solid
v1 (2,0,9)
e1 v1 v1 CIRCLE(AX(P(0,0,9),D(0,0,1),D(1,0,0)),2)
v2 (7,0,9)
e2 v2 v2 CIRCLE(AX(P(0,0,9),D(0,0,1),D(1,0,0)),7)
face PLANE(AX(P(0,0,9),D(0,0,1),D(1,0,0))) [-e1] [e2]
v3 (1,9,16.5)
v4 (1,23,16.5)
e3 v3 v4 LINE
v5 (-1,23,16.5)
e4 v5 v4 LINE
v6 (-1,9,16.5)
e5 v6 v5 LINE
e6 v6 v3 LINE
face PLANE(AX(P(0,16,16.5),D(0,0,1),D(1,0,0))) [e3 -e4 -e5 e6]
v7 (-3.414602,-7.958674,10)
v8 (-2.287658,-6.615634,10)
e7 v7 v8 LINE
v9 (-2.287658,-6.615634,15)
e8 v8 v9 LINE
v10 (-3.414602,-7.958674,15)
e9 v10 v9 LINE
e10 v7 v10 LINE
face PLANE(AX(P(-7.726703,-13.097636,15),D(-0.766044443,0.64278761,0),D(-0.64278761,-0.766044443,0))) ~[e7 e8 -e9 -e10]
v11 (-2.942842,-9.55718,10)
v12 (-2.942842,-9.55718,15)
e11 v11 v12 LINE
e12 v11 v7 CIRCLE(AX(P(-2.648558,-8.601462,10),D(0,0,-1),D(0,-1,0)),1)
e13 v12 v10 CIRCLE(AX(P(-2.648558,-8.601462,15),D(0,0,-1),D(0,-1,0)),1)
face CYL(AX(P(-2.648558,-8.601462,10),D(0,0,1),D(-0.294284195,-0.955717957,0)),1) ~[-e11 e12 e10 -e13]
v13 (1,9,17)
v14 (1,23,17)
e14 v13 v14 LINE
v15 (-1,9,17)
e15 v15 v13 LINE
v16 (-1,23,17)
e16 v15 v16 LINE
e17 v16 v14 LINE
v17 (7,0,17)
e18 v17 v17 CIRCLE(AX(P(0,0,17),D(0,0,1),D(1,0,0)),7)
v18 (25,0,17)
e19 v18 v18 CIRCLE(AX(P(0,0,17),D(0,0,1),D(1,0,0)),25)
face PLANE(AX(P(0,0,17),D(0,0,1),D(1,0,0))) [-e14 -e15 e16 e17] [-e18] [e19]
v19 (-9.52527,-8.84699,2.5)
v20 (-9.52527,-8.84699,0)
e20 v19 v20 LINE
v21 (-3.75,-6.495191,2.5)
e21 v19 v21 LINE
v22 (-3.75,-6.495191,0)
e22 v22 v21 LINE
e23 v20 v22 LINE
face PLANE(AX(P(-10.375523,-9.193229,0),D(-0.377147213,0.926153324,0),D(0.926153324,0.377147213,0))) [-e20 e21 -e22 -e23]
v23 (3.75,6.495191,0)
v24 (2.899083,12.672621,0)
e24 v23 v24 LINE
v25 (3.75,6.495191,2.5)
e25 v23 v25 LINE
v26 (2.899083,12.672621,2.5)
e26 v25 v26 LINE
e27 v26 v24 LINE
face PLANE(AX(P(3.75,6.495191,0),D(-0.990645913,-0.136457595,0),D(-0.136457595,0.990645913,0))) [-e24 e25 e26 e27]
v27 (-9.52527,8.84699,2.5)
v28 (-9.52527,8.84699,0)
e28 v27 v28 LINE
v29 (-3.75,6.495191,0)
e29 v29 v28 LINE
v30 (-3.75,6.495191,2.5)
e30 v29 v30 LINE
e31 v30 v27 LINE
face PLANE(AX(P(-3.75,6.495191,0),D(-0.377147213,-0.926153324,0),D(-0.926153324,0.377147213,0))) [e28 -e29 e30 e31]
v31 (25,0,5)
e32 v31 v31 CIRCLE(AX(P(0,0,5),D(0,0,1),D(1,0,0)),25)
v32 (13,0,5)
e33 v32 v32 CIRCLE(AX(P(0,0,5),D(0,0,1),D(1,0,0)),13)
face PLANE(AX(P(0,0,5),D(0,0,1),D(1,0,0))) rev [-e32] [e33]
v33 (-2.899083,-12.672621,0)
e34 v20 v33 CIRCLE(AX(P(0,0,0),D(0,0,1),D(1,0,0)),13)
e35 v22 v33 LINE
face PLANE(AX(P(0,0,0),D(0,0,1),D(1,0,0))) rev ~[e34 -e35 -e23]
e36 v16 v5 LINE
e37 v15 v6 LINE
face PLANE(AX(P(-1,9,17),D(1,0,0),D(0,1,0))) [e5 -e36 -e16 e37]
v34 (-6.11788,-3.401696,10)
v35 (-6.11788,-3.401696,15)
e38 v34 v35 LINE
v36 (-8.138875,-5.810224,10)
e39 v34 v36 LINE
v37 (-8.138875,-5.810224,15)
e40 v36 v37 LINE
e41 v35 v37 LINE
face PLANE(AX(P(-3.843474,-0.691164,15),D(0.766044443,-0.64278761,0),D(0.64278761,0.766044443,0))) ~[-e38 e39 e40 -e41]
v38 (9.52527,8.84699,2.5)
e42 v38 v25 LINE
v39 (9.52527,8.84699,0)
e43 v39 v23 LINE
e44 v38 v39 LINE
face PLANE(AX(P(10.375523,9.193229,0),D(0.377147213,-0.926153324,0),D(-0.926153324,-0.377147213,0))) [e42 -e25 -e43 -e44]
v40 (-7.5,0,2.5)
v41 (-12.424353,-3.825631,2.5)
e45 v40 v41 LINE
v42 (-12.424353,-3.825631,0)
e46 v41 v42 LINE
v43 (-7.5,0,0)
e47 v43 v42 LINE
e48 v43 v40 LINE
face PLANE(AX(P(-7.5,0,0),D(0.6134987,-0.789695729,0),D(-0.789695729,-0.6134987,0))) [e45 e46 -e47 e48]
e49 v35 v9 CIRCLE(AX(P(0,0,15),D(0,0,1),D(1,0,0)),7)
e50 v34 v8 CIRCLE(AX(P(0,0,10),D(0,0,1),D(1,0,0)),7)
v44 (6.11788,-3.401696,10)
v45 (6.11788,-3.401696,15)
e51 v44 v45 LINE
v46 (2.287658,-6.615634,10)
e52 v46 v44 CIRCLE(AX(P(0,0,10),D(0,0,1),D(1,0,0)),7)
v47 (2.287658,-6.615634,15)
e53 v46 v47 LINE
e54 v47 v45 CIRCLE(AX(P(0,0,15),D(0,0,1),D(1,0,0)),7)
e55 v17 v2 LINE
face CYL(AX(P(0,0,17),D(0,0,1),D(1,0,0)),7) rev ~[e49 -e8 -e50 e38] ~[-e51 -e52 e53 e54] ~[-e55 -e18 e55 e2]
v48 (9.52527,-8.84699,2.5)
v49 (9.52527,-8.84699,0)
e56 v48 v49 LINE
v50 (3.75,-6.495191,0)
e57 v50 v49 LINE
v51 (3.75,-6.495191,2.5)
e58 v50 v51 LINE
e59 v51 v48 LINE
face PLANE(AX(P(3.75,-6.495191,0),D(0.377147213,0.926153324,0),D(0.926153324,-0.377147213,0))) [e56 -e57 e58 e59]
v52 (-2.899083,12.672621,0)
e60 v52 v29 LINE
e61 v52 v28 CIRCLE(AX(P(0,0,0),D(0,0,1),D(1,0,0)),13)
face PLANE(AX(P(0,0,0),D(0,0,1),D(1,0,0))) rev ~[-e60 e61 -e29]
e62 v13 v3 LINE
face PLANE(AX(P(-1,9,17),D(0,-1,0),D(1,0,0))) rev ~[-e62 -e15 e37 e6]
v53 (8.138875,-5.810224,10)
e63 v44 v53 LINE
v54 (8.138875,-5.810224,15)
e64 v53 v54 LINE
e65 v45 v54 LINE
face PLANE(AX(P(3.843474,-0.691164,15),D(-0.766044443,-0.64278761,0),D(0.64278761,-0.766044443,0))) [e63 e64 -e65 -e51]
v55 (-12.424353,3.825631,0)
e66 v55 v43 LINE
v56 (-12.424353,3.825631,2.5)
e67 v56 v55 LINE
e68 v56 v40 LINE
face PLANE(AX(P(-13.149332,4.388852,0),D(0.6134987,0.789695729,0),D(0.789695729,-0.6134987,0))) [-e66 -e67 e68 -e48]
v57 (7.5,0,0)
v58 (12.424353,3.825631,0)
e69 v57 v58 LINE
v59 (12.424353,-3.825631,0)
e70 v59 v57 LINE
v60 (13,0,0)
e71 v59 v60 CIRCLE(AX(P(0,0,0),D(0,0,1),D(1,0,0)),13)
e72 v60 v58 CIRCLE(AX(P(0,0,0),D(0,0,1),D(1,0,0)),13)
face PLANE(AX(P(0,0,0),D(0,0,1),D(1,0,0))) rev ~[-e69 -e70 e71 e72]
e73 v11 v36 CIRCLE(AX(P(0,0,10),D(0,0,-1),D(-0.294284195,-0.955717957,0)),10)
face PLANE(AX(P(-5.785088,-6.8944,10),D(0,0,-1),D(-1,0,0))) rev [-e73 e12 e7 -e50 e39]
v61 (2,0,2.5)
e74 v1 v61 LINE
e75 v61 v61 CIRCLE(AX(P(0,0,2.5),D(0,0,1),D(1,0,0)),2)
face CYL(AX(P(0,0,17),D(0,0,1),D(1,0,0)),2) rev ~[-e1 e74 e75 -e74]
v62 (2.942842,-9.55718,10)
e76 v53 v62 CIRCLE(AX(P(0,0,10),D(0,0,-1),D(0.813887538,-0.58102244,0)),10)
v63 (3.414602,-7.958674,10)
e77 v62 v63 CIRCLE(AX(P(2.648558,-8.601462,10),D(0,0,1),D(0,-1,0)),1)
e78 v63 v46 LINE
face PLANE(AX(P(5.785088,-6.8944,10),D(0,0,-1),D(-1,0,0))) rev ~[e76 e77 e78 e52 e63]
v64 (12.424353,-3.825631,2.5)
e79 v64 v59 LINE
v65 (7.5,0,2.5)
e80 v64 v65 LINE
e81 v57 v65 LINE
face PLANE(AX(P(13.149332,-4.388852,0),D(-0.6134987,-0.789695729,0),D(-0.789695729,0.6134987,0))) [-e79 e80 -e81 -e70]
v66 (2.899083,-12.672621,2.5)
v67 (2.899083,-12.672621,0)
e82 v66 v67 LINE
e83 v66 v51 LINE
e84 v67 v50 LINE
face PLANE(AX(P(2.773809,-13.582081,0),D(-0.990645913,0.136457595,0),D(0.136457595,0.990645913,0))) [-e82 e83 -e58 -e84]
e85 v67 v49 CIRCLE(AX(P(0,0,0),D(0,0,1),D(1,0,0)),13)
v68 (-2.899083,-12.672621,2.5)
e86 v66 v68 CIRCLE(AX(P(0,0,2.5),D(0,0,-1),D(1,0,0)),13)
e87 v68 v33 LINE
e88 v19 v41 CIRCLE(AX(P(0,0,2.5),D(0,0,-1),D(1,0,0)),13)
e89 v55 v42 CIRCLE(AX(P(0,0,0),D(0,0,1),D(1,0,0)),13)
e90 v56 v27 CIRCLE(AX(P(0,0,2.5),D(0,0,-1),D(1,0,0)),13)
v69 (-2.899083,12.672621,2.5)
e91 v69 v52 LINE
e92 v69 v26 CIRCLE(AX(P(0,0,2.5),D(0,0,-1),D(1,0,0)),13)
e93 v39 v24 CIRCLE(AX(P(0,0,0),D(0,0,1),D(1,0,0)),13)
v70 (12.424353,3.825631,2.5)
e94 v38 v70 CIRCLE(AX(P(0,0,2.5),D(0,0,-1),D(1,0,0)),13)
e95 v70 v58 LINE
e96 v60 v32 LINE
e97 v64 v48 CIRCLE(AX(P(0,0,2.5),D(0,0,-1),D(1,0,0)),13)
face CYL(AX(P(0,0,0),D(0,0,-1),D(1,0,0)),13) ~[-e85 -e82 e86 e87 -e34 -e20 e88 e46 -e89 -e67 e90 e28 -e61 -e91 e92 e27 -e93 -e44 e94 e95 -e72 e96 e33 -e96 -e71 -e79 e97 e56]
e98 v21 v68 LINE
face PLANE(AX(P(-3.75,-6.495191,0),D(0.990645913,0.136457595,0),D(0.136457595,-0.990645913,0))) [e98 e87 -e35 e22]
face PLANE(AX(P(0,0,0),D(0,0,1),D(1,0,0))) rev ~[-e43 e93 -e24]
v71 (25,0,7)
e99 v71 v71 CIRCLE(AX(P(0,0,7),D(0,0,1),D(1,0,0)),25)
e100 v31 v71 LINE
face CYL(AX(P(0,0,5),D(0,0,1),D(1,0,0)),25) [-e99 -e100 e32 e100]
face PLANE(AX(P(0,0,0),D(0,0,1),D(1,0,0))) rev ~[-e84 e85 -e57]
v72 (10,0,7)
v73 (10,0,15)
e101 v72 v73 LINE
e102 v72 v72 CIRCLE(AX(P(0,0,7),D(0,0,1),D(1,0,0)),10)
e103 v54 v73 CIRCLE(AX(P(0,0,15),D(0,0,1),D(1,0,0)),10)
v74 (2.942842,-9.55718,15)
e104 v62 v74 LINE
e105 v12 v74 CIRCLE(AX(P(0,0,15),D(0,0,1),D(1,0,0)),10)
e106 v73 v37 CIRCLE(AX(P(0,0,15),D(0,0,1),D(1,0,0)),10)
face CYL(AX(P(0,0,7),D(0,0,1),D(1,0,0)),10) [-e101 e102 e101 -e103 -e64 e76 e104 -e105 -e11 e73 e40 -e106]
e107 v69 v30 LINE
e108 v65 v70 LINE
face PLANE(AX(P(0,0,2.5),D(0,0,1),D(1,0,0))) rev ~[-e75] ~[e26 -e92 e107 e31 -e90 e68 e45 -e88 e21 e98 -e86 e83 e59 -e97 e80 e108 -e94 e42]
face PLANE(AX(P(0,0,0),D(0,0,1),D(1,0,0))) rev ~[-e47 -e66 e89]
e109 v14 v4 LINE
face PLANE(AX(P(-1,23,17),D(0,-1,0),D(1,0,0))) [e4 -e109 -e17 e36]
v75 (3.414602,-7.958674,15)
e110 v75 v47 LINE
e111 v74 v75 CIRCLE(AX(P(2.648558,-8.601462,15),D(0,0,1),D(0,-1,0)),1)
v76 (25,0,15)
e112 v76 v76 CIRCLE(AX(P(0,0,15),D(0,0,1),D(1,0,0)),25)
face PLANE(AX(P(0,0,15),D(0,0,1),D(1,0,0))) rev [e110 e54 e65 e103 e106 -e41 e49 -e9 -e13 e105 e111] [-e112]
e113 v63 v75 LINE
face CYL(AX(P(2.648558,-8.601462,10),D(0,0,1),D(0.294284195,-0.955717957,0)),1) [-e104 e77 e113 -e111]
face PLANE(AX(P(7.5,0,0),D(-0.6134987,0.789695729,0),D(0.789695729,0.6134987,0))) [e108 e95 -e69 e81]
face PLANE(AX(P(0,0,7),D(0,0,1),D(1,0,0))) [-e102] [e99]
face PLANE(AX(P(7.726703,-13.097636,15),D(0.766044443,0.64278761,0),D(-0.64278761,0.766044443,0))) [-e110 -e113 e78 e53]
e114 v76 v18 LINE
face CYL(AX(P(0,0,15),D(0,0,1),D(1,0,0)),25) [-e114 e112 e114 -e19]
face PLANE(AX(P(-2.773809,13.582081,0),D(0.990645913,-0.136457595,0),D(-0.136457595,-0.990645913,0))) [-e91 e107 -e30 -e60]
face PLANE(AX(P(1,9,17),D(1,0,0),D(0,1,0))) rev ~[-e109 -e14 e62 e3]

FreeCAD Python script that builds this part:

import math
import FreeCAD as App
import Part
import Sketcher
from FreeCAD import Vector
Q = App.Units.Quantity


def edges_at(feature, points):
    """Names of the edges that pass closest to the given points."""
    edges = feature.Shape.Edges
    near = lambda p: min(range(len(edges)), key=lambda i: edges[i].distToShape(Part.Vertex(*p))[0])
    return sorted({f"Edge{near(p) + 1}" for p in points})


def add_polygon(sketch, points):
    """Adds a closed chain of lines whose ends are joined by coincident constraints."""
    first, n = sketch.GeometryCount, len(points)
    for a, b in zip(points, points[1:] + points[:1]):
        sketch.addGeometry(Part.LineSegment(App.Vector(*a, 0), App.Vector(*b, 0)), False)
    for i in range(n):
        sketch.addConstraint(Sketcher.Constraint("Coincident", first + i, 2, first + (i + 1) % n, 1))

doc = App.newDocument("Part")
body = doc.addObject("PartDesign::Body", "Body")

# Sketch on XY plane
sketch1 = body.newObject("Sketcher::SketchObject", "Sketch")
sketch1.AttachmentSupport = (doc.getObject("XY_Plane"), [""])
sketch1.MapMode = "FlatFace"
sketch1.addGeometry(Part.Circle(Vector(0, 0, 0), Vector(0, 0, 1), 13), False)
sketch1.addConstraint(Sketcher.Constraint("Coincident", 0, 3, -1, 1))
sketch1.addConstraint(Sketcher.Constraint("Diameter", 0, Q("26 mm")))
pad1 = body.newObject("PartDesign::Pad", "Pad")
pad1.Profile = sketch1
pad1.Length = 5

# Sketch on XY plane
sketch2 = body.newObject("Sketcher::SketchObject", "Sketch001")
sketch2.AttachmentSupport = (doc.getObject("XY_Plane"), [""])
sketch2.MapMode = "FlatFace"
sketch2.addGeometry(Part.LineSegment(Vector(3.8, 6.5, 0), Vector(2.8, 13.6, 0)), False)
sketch2.addGeometry(Part.ArcOfCircle(Part.Circle(Vector(0, 13.2, 0), Vector(0, 0, 1), 2.8), math.radians(8), math.radians(172)), False)
sketch2.addGeometry(Part.LineSegment(Vector(-2.8, 13.6, 0), Vector(-3.8, 6.5, 0)), False)
sketch2.addGeometry(Part.LineSegment(Vector(-3.8, 6.5, 0), Vector(-10.4, 9.2, 0)), False)
sketch2.addGeometry(Part.ArcOfCircle(Part.Circle(Vector(-11.4, 6.6, 0), Vector(0, 0, 1), 2.8), math.radians(68), math.radians(232)), False)
sketch2.addGeometry(Part.LineSegment(Vector(-13.1, 4.4, 0), Vector(-7.5, 0, 0)), False)
sketch2.addGeometry(Part.LineSegment(Vector(-7.5, 0, 0), Vector(-13.1, -4.4, 0)), False)
sketch2.addGeometry(Part.ArcOfCircle(Part.Circle(Vector(-11.4, -6.6, 0), Vector(0, 0, 1), 2.8), math.radians(128), math.radians(292)), False)
sketch2.addGeometry(Part.LineSegment(Vector(-10.4, -9.2, 0), Vector(-3.8, -6.5, 0)), False)
sketch2.addGeometry(Part.LineSegment(Vector(-3.8, -6.5, 0), Vector(-2.8, -13.6, 0)), False)
sketch2.addGeometry(Part.ArcOfCircle(Part.Circle(Vector(0, -13.2, 0), Vector(0, 0, 1), 2.8), math.radians(-172), math.radians(-8)), False)
sketch2.addGeometry(Part.LineSegment(Vector(2.8, -13.6, 0), Vector(3.8, -6.5, 0)), False)
sketch2.addGeometry(Part.LineSegment(Vector(3.8, -6.5, 0), Vector(10.4, -9.2, 0)), False)
sketch2.addGeometry(Part.ArcOfCircle(Part.Circle(Vector(11.4, -6.6, 0), Vector(0, 0, 1), 2.8), math.radians(-112), math.radians(52)), False)
sketch2.addGeometry(Part.LineSegment(Vector(13.1, -4.4, 0), Vector(7.5, 0, 0)), False)
sketch2.addGeometry(Part.LineSegment(Vector(7.5, 0, 0), Vector(13.1, 4.4, 0)), False)
sketch2.addGeometry(Part.ArcOfCircle(Part.Circle(Vector(11.4, 6.6, 0), Vector(0, 0, 1), 2.8), math.radians(-52), math.radians(112)), False)
sketch2.addGeometry(Part.LineSegment(Vector(10.4, 9.2, 0), Vector(3.8, 6.5, 0)), False)
sketch2.addConstraint(Sketcher.Constraint("Tangent", 0, 2, 1, 1))
sketch2.addConstraint(Sketcher.Constraint("Tangent", 1, 2, 2, 1))
sketch2.addConstraint(Sketcher.Constraint("Coincident", 2, 2, 3, 1))
sketch2.addConstraint(Sketcher.Constraint("Tangent", 3, 2, 4, 1))
sketch2.addConstraint(Sketcher.Constraint("Tangent", 4, 2, 5, 1))
sketch2.addConstraint(Sketcher.Constraint("Coincident", 5, 2, 6, 1))
sketch2.addConstraint(Sketcher.Constraint("Tangent", 6, 2, 7, 1))
sketch2.addConstraint(Sketcher.Constraint("Tangent", 7, 2, 8, 1))
sketch2.addConstraint(Sketcher.Constraint("Coincident", 8, 2, 9, 1))
sketch2.addConstraint(Sketcher.Constraint("Tangent", 9, 2, 10, 1))
sketch2.addConstraint(Sketcher.Constraint("Tangent", 10, 2, 11, 1))
sketch2.addConstraint(Sketcher.Constraint("Coincident", 11, 2, 12, 1))
sketch2.addConstraint(Sketcher.Constraint("Tangent", 12, 2, 13, 1))
sketch2.addConstraint(Sketcher.Constraint("Tangent", 13, 2, 14, 1))
sketch2.addConstraint(Sketcher.Constraint("Coincident", 14, 2, 15, 1))
sketch2.addConstraint(Sketcher.Constraint("Tangent", 15, 2, 16, 1))
sketch2.addConstraint(Sketcher.Constraint("Tangent", 16, 2, 17, 1))
sketch2.addConstraint(Sketcher.Constraint("Coincident", 17, 2, 0, 1))
sketch2.addConstraint(Sketcher.Constraint("Equal", 1, 4))
sketch2.addConstraint(Sketcher.Constraint("Equal", 4, 7))
sketch2.addConstraint(Sketcher.Constraint("Equal", 7, 10))
sketch2.addConstraint(Sketcher.Constraint("Equal", 10, 13))
sketch2.addConstraint(Sketcher.Constraint("Equal", 13, 16))
sketch2.addConstraint(Sketcher.Constraint("Symmetric", 1, 3, 10, 3, -1, 1))
sketch2.addConstraint(Sketcher.Constraint("Symmetric", 4, 3, 13, 3, -1, 1))
sketch2.addConstraint(Sketcher.Constraint("Symmetric", 7, 3, 16, 3, -1, 1))
sketch2.addConstraint(Sketcher.Constraint("Symmetric", 2, 2, 11, 2, -1, 1))
sketch2.addConstraint(Sketcher.Constraint("Symmetric", 5, 2, 14, 2, -1, 1))
sketch2.addConstraint(Sketcher.Constraint("Symmetric", 8, 2, 17, 2, -1, 1))
sketch2.addConstraint(Sketcher.Constraint("Symmetric", 7, 3, 13, 3, -2))
sketch2.addConstraint(Sketcher.Constraint("Symmetric", 0, 2, 1, 2, -2))
sketch2.addConstraint(Sketcher.Constraint("PointOnObject", 5, 2, -1))
sketch2.addConstraint(Sketcher.Constraint("Horizontal", 8, 2, 11, 2))
sketch2.addConstraint(Sketcher.Constraint("Equal", 2, 3))
sketch2.addConstraint(Sketcher.Constraint("Equal", 3, 5))
sketch2.addConstraint(Sketcher.Constraint("Radius", 1, Q("2.8 mm")))
sketch2.addConstraint(Sketcher.Constraint("DistanceY", -1, 1, 1, 3, Q("13.2 mm")))
sketch2.addConstraint(Sketcher.Constraint("DistanceY", -1, 1, 4, 3, Q("6.6 mm")))
sketch2.addConstraint(Sketcher.Constraint("DistanceX", 5, 2, -1, 1, Q("7.5 mm")))
sketch2.addConstraint(Sketcher.Constraint("DistanceX", 8, 2, 11, 2, Q("7.5 mm")))
pocket1 = body.newObject("PartDesign::Pocket", "Pocket")
pocket1.Profile = sketch2
pocket1.Length = 2.5
pocket1.Reversed = True

# Sketch on XZ plane
sketch3 = body.newObject("Sketcher::SketchObject", "Sketch002")
sketch3.AttachmentSupport = (doc.getObject("XZ_Plane"), [""])
sketch3.MapMode = "FlatFace"
add_polygon(sketch3, [(25, 5), (0, 5), (0, 17), (25, 17), (25, 15), (10, 15), (10, 7), (25, 7)])  # lines 0-7
sketch3.addConstraint(Sketcher.Constraint("Horizontal", 0))
sketch3.addConstraint(Sketcher.Constraint("Vertical", 1))
sketch3.addConstraint(Sketcher.Constraint("Horizontal", 2))
sketch3.addConstraint(Sketcher.Constraint("Vertical", 3))
sketch3.addConstraint(Sketcher.Constraint("Horizontal", 4))
sketch3.addConstraint(Sketcher.Constraint("Vertical", 5))
sketch3.addConstraint(Sketcher.Constraint("Horizontal", 6))
sketch3.addConstraint(Sketcher.Constraint("Vertical", 7))
sketch3.addConstraint(Sketcher.Constraint("PointOnObject", 0, 2, -2))
sketch3.addConstraint(Sketcher.Constraint("Vertical", 3, 2, 6, 2))
sketch3.addConstraint(Sketcher.Constraint("Equal", 3, 7))
sketch3.addConstraint(Sketcher.Constraint("DistanceX", 0, 2, 0, 1, Q("25 mm")))
sketch3.addConstraint(Sketcher.Constraint("DistanceX", 4, 2, 4, 1, Q("15 mm")))
sketch3.addConstraint(Sketcher.Constraint("DistanceY", 1, 1, 1, 2, Q("12 mm")))
sketch3.addConstraint(Sketcher.Constraint("DistanceY", 3, 2, 3, 1, Q("2 mm")))
sketch3.addConstraint(Sketcher.Constraint("DistanceY", -1, 1, 0, 2, Q("5 mm")))
revolution = body.newObject("PartDesign::Revolution", "Revolution")
revolution.Profile = sketch3
revolution.ReferenceAxis = (sketch3, ["V_Axis"])
revolution.Angle = 360

# Sketch on XY plane
sketch4 = body.newObject("Sketcher::SketchObject", "Sketch003")
sketch4.AttachmentSupport = (doc.getObject("XY_Plane"), [""])
sketch4.MapMode = "FlatFace"
sketch4.AttachmentOffset = App.Placement(Vector(0, 0, 17), App.Rotation())
sketch4.addGeometry(Part.Circle(Vector(0, 0, 0), Vector(0, 0, 1), 2), False)
sketch4.addConstraint(Sketcher.Constraint("Coincident", 0, 3, -1, 1))
sketch4.addConstraint(Sketcher.Constraint("Diameter", 0, Q("4 mm")))
pocket2 = body.newObject("PartDesign::Pocket", "Pocket001")
pocket2.Profile = sketch4
pocket2.Type = "ThroughAll"

# Sketch on XY plane
sketch5 = body.newObject("Sketcher::SketchObject", "Sketch004")
sketch5.AttachmentSupport = (doc.getObject("XY_Plane"), [""])
sketch5.MapMode = "FlatFace"
sketch5.AttachmentOffset = App.Placement(Vector(0, 0, 17), App.Rotation())
sketch5.addGeometry(Part.Circle(Vector(0, 0, 0), Vector(0, 0, 1), 7), False)
sketch5.addConstraint(Sketcher.Constraint("Coincident", 0, 3, -1, 1))
sketch5.addConstraint(Sketcher.Constraint("Diameter", 0, Q("14 mm")))
pocket3 = body.newObject("PartDesign::Pocket", "Pocket002")
pocket3.Profile = sketch5
pocket3.Length = 8

# Sketch on XY plane
sketch6 = body.newObject("Sketcher::SketchObject", "Sketch005")
sketch6.AttachmentSupport = (doc.getObject("XY_Plane"), [""])
sketch6.MapMode = "FlatFace"
sketch6.AttachmentOffset = App.Placement(Vector(0, 0, 15), App.Rotation())
add_polygon(sketch6, [(3.8, -0.7), (11.6, -9.9), (7.7, -13.1), (0, -3.9)])  # lines 0-3
sketch6.addConstraint(Sketcher.Constraint("Perpendicular", 0, 1))
sketch6.addConstraint(Sketcher.Constraint("Perpendicular", 1, 2))
sketch6.addConstraint(Sketcher.Constraint("Perpendicular", 2, 3))
sketch6.addConstraint(Sketcher.Constraint("Angle", 0, Q("-50 deg")))
sketch6.addConstraint(Sketcher.Constraint("Distance", 0, Q("12 mm")))
sketch6.addConstraint(Sketcher.Constraint("Distance", 1, Q("5 mm")))
sketch6.addConstraint(Sketcher.Constraint("DistanceX", -1, 1, 2, 2, Q("0.013252 mm")))
sketch6.addConstraint(Sketcher.Constraint("DistanceY", 0, 2, -1, 1, Q("9.883698 mm")))
pocket4 = body.newObject("PartDesign::Pocket", "Pocket003")
pocket4.Profile = sketch6
pocket4.Length = 5
doc.recompute()

mirrored = body.newObject("PartDesign::Mirrored", "Mirrored")
mirrored.Originals = [pocket4]
mirrored.MirrorPlane = (doc.getObject("YZ_Plane"), [""])
body.Tip = mirrored
doc.recompute()

fillet = body.newObject("PartDesign::Fillet", "Fillet")
fillet.Base = (mirrored, edges_at(mirrored, [(4.309, -9.024, 12.5), (-4.309, -9.024, 12.5)]))
fillet.Radius = 1

# Sketch on XY plane
sketch7 = body.newObject("Sketcher::SketchObject", "Sketch006")
sketch7.AttachmentSupport = (doc.getObject("XY_Plane"), [""])
sketch7.MapMode = "FlatFace"
sketch7.AttachmentOffset = App.Placement(Vector(0, 0, 17), App.Rotation())
add_polygon(sketch7, [(-1, 23), (-1, 9), (1, 9), (1, 23)])  # lines 0-3
sketch7.addConstraint(Sketcher.Constraint("Vertical", 0))
sketch7.addConstraint(Sketcher.Constraint("Horizontal", 1))
sketch7.addConstraint(Sketcher.Constraint("Vertical", 2))
sketch7.addConstraint(Sketcher.Constraint("Horizontal", 3))
sketch7.addConstraint(Sketcher.Constraint("DistanceX", 1, 1, 1, 2, Q("2 mm")))
sketch7.addConstraint(Sketcher.Constraint("DistanceY", 0, 2, 0, 1, Q("14 mm")))
sketch7.addConstraint(Sketcher.Constraint("DistanceX", 0, 2, -1, 1, Q("1 mm")))
sketch7.addConstraint(Sketcher.Constraint("DistanceY", -1, 1, 0, 2, Q("9 mm")))
pocket5 = body.newObject("PartDesign::Pocket", "Pocket004")
pocket5.Profile = sketch7
pocket5.Length = 0.5

doc.recompute()
